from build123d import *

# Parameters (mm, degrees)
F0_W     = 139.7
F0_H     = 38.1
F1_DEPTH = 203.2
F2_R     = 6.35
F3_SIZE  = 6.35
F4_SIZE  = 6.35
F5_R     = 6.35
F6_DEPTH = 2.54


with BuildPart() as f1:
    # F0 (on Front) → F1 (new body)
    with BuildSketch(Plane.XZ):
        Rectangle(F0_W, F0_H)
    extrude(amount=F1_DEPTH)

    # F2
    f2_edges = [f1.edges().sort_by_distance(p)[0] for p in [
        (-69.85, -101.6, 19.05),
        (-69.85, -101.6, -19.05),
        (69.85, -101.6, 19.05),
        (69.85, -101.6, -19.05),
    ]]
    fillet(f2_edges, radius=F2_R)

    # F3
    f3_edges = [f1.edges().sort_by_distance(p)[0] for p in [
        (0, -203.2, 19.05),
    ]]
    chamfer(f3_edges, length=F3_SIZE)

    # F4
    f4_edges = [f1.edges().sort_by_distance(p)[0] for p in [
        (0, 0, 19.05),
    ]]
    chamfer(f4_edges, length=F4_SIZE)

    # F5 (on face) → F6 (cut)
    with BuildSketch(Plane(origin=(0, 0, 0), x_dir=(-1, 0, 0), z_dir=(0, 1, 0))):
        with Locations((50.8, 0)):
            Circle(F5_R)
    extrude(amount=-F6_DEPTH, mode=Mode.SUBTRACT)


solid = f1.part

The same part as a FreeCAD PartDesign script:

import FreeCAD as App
import Part
import Sketcher
from FreeCAD import Vector
Q = App.Units.Quantity


def edges_at(feature, points):
    """Names of the edges that pass closest to the given points."""
    edges = feature.Shape.Edges
    near = lambda p: min(range(len(edges)), key=lambda i: edges[i].distToShape(Part.Vertex(*p))[0])
    return sorted({f"Edge{near(p) + 1}" for p in points})


def add_polygon(sketch, points):
    """Adds a closed chain of lines whose ends are joined by coincident constraints."""
    first, n = sketch.GeometryCount, len(points)
    for a, b in zip(points, points[1:] + points[:1]):
        sketch.addGeometry(Part.LineSegment(App.Vector(*a, 0), App.Vector(*b, 0)), False)
    for i in range(n):
        sketch.addConstraint(Sketcher.Constraint("Coincident", first + i, 2, first + (i + 1) % n, 1))

doc = App.newDocument("Part")
params = doc.addObject("Spreadsheet::Sheet", "Params")
for row, (alias, value) in enumerate([
    ("sketch1_width", "5.5 in"),
    ("sketch1_height", "1.5 in"),
    ("pad1_length", "8 in"),
    ("fillet_radius", "0.25 in"),
    ("chamfer_size", "0.25 in"),
    ("chamfer2_size", "0.25 in"),
    ("sketch2_diameter", "0.5 in"),
    ("pocket1_length", "0.1 in"),
], start=1):
    params.set(f"A{row}", alias)
    params.set(f"B{row}", "=" + value)
    params.setAlias(f"B{row}", alias)

body = doc.addObject("PartDesign::Body", "Body")

# Sketch on XZ plane
sketch1 = body.newObject("Sketcher::SketchObject", "Sketch")
sketch1.AttachmentSupport = (doc.getObject("XZ_Plane"), [""])
sketch1.MapMode = "FlatFace"
add_polygon(sketch1, [(-69.85, 19.05), (-69.85, -19.05), (69.85, -19.05), (69.85, 19.05)])  # lines 0-3
sketch1.addConstraint([
    Sketcher.Constraint("Vertical", 0),
    Sketcher.Constraint("Horizontal", 1),
    Sketcher.Constraint("Vertical", 2),
    Sketcher.Constraint("Horizontal", 3),
    Sketcher.Constraint("Symmetric", 0, 2, 2, 2, -1, 1),
    Sketcher.Constraint("DistanceX", 1, 1, 1, 2, Q("5.5 in")),
    Sketcher.Constraint("DistanceY", 0, 2, 0, 1, Q("1.5 in")),
])
sketch1.setExpression("Constraints[9]", "Params.sketch1_width")
sketch1.setExpression("Constraints[10]", "Params.sketch1_height")
pad1 = body.newObject("PartDesign::Pad", "Pad")
pad1.Profile = sketch1
pad1.setExpression("Length", "Params.pad1_length")
doc.recompute()

fillet = body.newObject("PartDesign::Fillet", "Fillet")
fillet.Base = (pad1, edges_at(pad1, [
    (-69.85, -101.6, 19.05),
    (-69.85, -101.6, -19.05),
    (69.85, -101.6, 19.05),
    (69.85, -101.6, -19.05),
]))
fillet.setExpression("Radius", "Params.fillet_radius")
doc.recompute()

chamfer = body.newObject("PartDesign::Chamfer", "Chamfer")
chamfer.Base = (fillet, edges_at(fillet, [(0, -203.2, 19.05)]))
chamfer.setExpression("Size", "Params.chamfer_size")
doc.recompute()

chamfer2 = body.newObject("PartDesign::Chamfer", "Chamfer001")
chamfer2.Base = (chamfer, edges_at(chamfer, [(0, 0, 19.05)]))
chamfer2.setExpression("Size", "Params.chamfer2_size")

# Sketch on XZ plane
sketch2 = body.newObject("Sketcher::SketchObject", "Sketch001")
sketch2.AttachmentSupport = (doc.getObject("XZ_Plane"), [""])
sketch2.MapMode = "FlatFace"
sketch2.addGeometry(Part.Circle(Vector(-50.8, 0, 0), Vector(0, 0, 1), 6.35), False)
sketch2.addConstraint([
    Sketcher.Constraint("PointOnObject", 0, 3, -1),
    Sketcher.Constraint("Diameter", 0, Q("0.5 in")),
    Sketcher.Constraint("DistanceX", 0, 3, -1, 1, Q("2 in")),
])
sketch2.setExpression("Constraints[1]", "Params.sketch2_diameter")
pocket1 = body.newObject("PartDesign::Pocket", "Pocket")
pocket1.Profile = sketch2
pocket1.setExpression("Length", "Params.pocket1_length")
pocket1.Reversed = True

doc.recompute()
